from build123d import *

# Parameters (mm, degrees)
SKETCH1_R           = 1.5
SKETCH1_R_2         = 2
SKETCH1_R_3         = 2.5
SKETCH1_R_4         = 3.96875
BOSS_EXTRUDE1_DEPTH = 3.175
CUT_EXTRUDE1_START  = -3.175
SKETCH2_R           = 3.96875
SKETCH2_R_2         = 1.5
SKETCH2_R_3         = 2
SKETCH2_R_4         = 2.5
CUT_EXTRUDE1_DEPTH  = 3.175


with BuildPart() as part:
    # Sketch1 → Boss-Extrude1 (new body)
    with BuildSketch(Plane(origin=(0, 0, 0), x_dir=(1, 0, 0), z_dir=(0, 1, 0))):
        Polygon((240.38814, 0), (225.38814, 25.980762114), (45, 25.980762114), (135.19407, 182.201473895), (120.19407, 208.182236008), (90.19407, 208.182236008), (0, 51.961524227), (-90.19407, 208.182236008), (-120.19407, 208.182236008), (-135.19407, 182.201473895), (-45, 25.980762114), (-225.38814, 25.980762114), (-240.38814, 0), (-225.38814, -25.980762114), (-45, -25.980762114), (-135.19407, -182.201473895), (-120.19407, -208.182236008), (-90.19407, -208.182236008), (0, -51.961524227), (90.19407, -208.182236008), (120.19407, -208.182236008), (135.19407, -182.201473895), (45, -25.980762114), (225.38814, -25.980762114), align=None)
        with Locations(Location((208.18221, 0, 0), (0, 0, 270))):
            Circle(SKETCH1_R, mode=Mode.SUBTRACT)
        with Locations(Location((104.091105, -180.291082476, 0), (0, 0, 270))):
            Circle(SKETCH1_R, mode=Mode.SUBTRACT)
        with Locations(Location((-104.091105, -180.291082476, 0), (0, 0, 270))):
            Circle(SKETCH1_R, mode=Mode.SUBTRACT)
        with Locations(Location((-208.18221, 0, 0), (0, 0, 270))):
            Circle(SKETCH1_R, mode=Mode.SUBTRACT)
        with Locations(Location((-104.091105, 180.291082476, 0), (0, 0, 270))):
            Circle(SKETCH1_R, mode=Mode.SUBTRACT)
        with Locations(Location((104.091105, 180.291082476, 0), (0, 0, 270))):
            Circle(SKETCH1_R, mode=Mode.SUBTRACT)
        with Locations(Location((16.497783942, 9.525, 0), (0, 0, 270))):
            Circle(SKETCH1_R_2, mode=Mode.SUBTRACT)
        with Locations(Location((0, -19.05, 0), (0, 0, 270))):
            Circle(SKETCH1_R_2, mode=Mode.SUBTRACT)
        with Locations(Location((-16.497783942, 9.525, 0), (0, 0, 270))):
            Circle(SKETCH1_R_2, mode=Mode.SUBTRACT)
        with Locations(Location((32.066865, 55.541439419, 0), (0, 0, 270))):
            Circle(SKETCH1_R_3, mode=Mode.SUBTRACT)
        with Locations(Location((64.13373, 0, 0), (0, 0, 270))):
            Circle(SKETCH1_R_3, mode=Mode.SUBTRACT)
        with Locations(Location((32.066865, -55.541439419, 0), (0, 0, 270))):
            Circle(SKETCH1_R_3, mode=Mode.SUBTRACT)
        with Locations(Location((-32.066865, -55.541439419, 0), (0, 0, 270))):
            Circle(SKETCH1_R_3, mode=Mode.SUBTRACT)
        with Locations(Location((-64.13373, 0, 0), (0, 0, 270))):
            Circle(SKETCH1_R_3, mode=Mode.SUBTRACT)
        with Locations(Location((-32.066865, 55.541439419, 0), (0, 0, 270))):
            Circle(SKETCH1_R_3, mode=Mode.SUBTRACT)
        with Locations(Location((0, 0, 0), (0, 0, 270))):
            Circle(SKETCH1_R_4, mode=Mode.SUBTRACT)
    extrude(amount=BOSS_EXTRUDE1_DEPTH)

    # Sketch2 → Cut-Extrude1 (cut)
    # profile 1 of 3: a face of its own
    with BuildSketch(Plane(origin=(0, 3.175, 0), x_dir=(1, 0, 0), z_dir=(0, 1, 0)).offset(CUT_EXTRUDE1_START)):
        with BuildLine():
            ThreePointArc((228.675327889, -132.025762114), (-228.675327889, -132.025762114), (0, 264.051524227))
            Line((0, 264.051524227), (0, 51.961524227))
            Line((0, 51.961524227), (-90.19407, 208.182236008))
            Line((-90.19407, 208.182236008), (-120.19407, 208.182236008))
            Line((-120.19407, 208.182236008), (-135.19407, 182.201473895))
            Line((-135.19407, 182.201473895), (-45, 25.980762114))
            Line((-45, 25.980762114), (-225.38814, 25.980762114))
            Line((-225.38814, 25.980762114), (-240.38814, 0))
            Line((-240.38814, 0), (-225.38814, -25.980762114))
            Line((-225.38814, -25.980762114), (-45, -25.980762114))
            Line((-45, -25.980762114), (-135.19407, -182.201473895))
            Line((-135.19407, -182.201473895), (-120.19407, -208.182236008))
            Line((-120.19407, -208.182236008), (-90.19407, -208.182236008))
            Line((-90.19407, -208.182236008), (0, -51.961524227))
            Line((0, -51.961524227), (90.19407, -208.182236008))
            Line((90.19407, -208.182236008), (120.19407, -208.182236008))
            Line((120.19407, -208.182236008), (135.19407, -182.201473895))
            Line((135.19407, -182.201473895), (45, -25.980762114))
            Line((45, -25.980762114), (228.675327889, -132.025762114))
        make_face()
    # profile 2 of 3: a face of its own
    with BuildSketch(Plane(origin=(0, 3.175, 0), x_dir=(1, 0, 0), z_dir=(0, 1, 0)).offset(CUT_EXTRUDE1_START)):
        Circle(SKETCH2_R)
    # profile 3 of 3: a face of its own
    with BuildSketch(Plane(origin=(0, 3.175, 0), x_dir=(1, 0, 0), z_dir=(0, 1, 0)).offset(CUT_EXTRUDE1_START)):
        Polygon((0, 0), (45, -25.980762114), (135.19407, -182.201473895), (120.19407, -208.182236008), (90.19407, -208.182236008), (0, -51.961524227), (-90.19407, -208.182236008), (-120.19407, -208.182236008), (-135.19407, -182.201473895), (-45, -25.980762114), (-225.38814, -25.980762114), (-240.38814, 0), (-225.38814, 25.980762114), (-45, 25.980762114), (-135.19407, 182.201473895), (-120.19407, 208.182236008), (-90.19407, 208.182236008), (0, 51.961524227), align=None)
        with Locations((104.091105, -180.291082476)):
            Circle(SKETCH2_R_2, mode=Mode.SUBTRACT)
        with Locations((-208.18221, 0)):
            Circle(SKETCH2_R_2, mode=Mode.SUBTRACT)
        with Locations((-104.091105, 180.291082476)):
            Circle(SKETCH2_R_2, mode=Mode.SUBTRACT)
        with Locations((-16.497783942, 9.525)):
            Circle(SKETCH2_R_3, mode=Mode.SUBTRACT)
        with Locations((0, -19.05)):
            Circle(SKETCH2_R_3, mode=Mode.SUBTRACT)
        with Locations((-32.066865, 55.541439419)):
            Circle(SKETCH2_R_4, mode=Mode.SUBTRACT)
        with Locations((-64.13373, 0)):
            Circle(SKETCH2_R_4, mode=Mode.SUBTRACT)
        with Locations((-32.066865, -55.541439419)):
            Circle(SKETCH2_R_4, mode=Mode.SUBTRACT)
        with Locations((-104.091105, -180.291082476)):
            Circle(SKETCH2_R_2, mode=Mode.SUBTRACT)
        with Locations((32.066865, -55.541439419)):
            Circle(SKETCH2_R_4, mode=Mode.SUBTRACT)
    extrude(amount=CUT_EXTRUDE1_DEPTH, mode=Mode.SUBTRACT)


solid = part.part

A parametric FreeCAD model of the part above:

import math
import FreeCAD as App
import Part
import Sketcher
Q = App.Units.Quantity

doc = App.newDocument("Part")
params = doc.addObject("Spreadsheet::Sheet", "Params")
for row, (alias, value) in enumerate([
    ("sketch1_diameter", "3 mm"),
    ("sketch1_diameter2", "5 mm"),
    ("sketch1_diameter3", "4 mm"),
    ("sketch1_width", "30 mm"),
    ("sketch1_length", "30 mm"),
    ("pad1_length", "3.175 mm"),
    ("sketch2_diameter", "3 mm"),
    ("sketch2_diameter2", "5 mm"),
    ("sketch2_diameter3", "4 mm"),
    ("sketch2_length", "212.09 mm"),
    ("pocket1_length", "3.175 mm"),
], start=1):
    params.set(f"A{row}", alias)
    params.set(f"B{row}", "=" + value)
    params.setAlias(f"B{row}", alias)

body = doc.addObject("PartDesign::Body", "Body")

sketch1 = body.newObject("Sketcher::SketchObject", "Sketch")
sketch1.AttachmentSupport = (doc.getObject("XZ_Plane"), [""])
sketch1.MapMode = "FlatFace"
sketch1.addGeometry([
    Part.LineSegment(App.Vector(240.4, 0, 0), App.Vector(225.4, -26, 0)),
    Part.LineSegment(App.Vector(225.4, -26, 0), App.Vector(45, -26, 0)),
    Part.LineSegment(App.Vector(45, -26, 0), App.Vector(135.2, -182.2, 0)),
    Part.LineSegment(App.Vector(135.2, -182.2, 0), App.Vector(120.2, -208.2, 0)),
    Part.LineSegment(App.Vector(120.2, -208.2, 0), App.Vector(90.2, -208.2, 0)),
    Part.LineSegment(App.Vector(90.2, -208.2, 0), App.Vector(0, -52, 0)),
    Part.LineSegment(App.Vector(0, -52, 0), App.Vector(-90.2, -208.2, 0)),
    Part.LineSegment(App.Vector(-90.2, -208.2, 0), App.Vector(-120.2, -208.2, 0)),
    Part.LineSegment(App.Vector(-120.2, -208.2, 0), App.Vector(-135.2, -182.2, 0)),
    Part.LineSegment(App.Vector(-135.2, -182.2, 0), App.Vector(-45, -26, 0)),
    Part.LineSegment(App.Vector(-45, -26, 0), App.Vector(-225.4, -26, 0)),
    Part.LineSegment(App.Vector(-225.4, -26, 0), App.Vector(-240.4, 0, 0)),
    Part.LineSegment(App.Vector(-240.4, 0, 0), App.Vector(-225.4, 26, 0)),
    Part.LineSegment(App.Vector(-225.4, 26, 0), App.Vector(-45, 26, 0)),
    Part.LineSegment(App.Vector(-45, 26, 0), App.Vector(-135.2, 182.2, 0)),
    Part.LineSegment(App.Vector(-135.2, 182.2, 0), App.Vector(-120.2, 208.2, 0)),
    Part.LineSegment(App.Vector(-120.2, 208.2, 0), App.Vector(-90.2, 208.2, 0)),
    Part.LineSegment(App.Vector(-90.2, 208.2, 0), App.Vector(0, 52, 0)),
    Part.LineSegment(App.Vector(0, 52, 0), App.Vector(90.2, 208.2, 0)),
    Part.LineSegment(App.Vector(90.2, 208.2, 0), App.Vector(120.2, 208.2, 0)),
    Part.LineSegment(App.Vector(120.2, 208.2, 0), App.Vector(135.2, 182.2, 0)),
    Part.LineSegment(App.Vector(135.2, 182.2, 0), App.Vector(45, 26, 0)),
    Part.LineSegment(App.Vector(45, 26, 0), App.Vector(225.4, 26, 0)),
    Part.LineSegment(App.Vector(225.4, 26, 0), App.Vector(240.4, 0, 0)),
    Part.Circle(App.Vector(-104.1, 180.3, 0), App.Vector(0, 0, 1), 1.5),
    Part.Circle(App.Vector(-32.1, 55.5, 0), App.Vector(0, 0, 1), 2.5),
    Part.Circle(App.Vector(104.1, 180.3, 0), App.Vector(0, 0, 1), 1.5),
    Part.Circle(App.Vector(32.1, 55.5, 0), App.Vector(0, 0, 1), 2.5),
    Part.Circle(App.Vector(0, 19.1, 0), App.Vector(0, 0, 1), 2),
    Part.Circle(App.Vector(-208.2, 0, 0), App.Vector(0, 0, 1), 1.5),
    Part.Circle(App.Vector(-64.1, 0, 0), App.Vector(0, 0, 1), 2.5),
    Part.Circle(App.Vector(-16.5, -9.5, 0), App.Vector(0, 0, 1), 2),
    Part.Circle(App.Vector(-32.1, -55.5, 0), App.Vector(0, 0, 1), 2.5),
    Part.Circle(App.Vector(-104.1, -180.3, 0), App.Vector(0, 0, 1), 1.5),
    Part.Circle(App.Vector(0, 0, 0), App.Vector(0, 0, 1), 4),
    Part.Circle(App.Vector(16.5, -9.5, 0), App.Vector(0, 0, 1), 2),
    Part.Circle(App.Vector(64.1, 0, 0), App.Vector(0, 0, 1), 2.5),
    Part.Circle(App.Vector(32.1, -55.5, 0), App.Vector(0, 0, 1), 2.5),
    Part.Circle(App.Vector(208.2, 0, 0), App.Vector(0, 0, 1), 1.5),
    Part.Circle(App.Vector(104.1, -180.3, 0), App.Vector(0, 0, 1), 1.5),
], False)
sketch1.addConstraint([
    Sketcher.Constraint("Coincident", 0, 2, 1, 1),
    Sketcher.Constraint("Coincident", 1, 2, 2, 1),
    Sketcher.Constraint("Coincident", 2, 2, 3, 1),
    Sketcher.Constraint("Coincident", 3, 2, 4, 1),
    Sketcher.Constraint("Coincident", 4, 2, 5, 1),
    Sketcher.Constraint("Coincident", 5, 2, 6, 1),
    Sketcher.Constraint("Coincident", 6, 2, 7, 1),
    Sketcher.Constraint("Coincident", 7, 2, 8, 1),
    Sketcher.Constraint("Coincident", 8, 2, 9, 1),
    Sketcher.Constraint("Coincident", 9, 2, 10, 1),
    Sketcher.Constraint("Coincident", 10, 2, 11, 1),
    Sketcher.Constraint("Coincident", 11, 2, 12, 1),
    Sketcher.Constraint("Coincident", 12, 2, 13, 1),
    Sketcher.Constraint("Coincident", 13, 2, 14, 1),
    Sketcher.Constraint("Coincident", 14, 2, 15, 1),
    Sketcher.Constraint("Coincident", 15, 2, 16, 1),
    Sketcher.Constraint("Coincident", 16, 2, 17, 1),
    Sketcher.Constraint("Coincident", 17, 2, 18, 1),
    Sketcher.Constraint("Coincident", 18, 2, 19, 1),
    Sketcher.Constraint("Coincident", 19, 2, 20, 1),
    Sketcher.Constraint("Coincident", 20, 2, 21, 1),
    Sketcher.Constraint("Coincident", 21, 2, 22, 1),
    Sketcher.Constraint("Coincident", 22, 2, 23, 1),
    Sketcher.Constraint("Coincident", 23, 2, 0, 1),
    Sketcher.Constraint("Horizontal", 1),
    Sketcher.Constraint("Horizontal", 4),
    Sketcher.Constraint("Horizontal", 7),
    Sketcher.Constraint("Horizontal", 10),
    Sketcher.Constraint("Horizontal", 13),
    Sketcher.Constraint("Horizontal", 16),
    Sketcher.Constraint("Horizontal", 19),
    Sketcher.Constraint("Horizontal", 22),
    Sketcher.Constraint("Coincident", 34, 3, -1, 1),
    Sketcher.Constraint("Equal", 24, 26),
    Sketcher.Constraint("Equal", 25, 27),
    Sketcher.Constraint("Equal", 26, 29),
    Sketcher.Constraint("Equal", 27, 30),
    Sketcher.Constraint("Equal", 28, 31),
    Sketcher.Constraint("Equal", 30, 32),
    Sketcher.Constraint("Equal", 29, 33),
    Sketcher.Constraint("Equal", 31, 35),
    Sketcher.Constraint("Equal", 32, 36),
    Sketcher.Constraint("Equal", 36, 37),
    Sketcher.Constraint("Equal", 33, 38),
    Sketcher.Constraint("Equal", 38, 39),
    Sketcher.Constraint("Symmetric", 27, 3, 32, 3, -1, 1),
    Sketcher.Constraint("Symmetric", 26, 3, 33, 3, -1, 1),
    Sketcher.Constraint("Symmetric", 30, 3, 36, 3, -1, 1),
    Sketcher.Constraint("Symmetric", 25, 3, 37, 3, -1, 1),
    Sketcher.Constraint("Symmetric", 29, 3, 38, 3, -1, 1),
    Sketcher.Constraint("Symmetric", 24, 3, 39, 3, -1, 1),
    Sketcher.Constraint("Symmetric", 0, 2, 12, 2, -1, 1),
    Sketcher.Constraint("Symmetric", 2, 2, 14, 2, -1, 1),
    Sketcher.Constraint("Symmetric", 3, 2, 15, 2, -1, 1),
    Sketcher.Constraint("Symmetric", 5, 2, 17, 2, -1, 1),
    Sketcher.Constraint("Symmetric", 6, 2, 18, 2, -1, 1),
    Sketcher.Constraint("Symmetric", 8, 2, 20, 2, -1, 1),
    Sketcher.Constraint("Symmetric", 9, 2, 21, 2, -1, 1),
    Sketcher.Constraint("Symmetric", 11, 2, 23, 2, -1, 1),
    Sketcher.Constraint("Symmetric", 24, 3, 26, 3, -2),
    Sketcher.Constraint("Symmetric", 25, 3, 27, 3, -2),
    Sketcher.Constraint("Symmetric", 31, 3, 35, 3, -2),
    Sketcher.Constraint("Symmetric", 4, 2, 6, 2, -2),
    Sketcher.Constraint("Symmetric", 2, 2, 8, 2, -2),
    Sketcher.Constraint("Symmetric", 1, 2, 9, 2, -2),
    Sketcher.Constraint("PointOnObject", 28, 3, -2),
    Sketcher.Constraint("PointOnObject", 29, 3, -1),
    Sketcher.Constraint("PointOnObject", 30, 3, -1),
    Sketcher.Constraint("PointOnObject", 5, 2, -2),
    Sketcher.Constraint("PointOnObject", 11, 2, -1),
    Sketcher.Constraint("Parallel", 0, 3),
    Sketcher.Constraint("Parallel", 2, 5),
    Sketcher.Constraint("Parallel", 3, 6),
    Sketcher.Constraint("Parallel", 5, 8),
    Sketcher.Constraint("Parallel", 8, 11),
    Sketcher.Constraint("Parallel", 11, 14),
    Sketcher.Constraint("Parallel", 14, 17),
    Sketcher.Constraint("Parallel", 17, 20),
    Sketcher.Constraint("Parallel", 20, 23),
    Sketcher.Constraint("Equal", 0, 3),
    Sketcher.Constraint("Equal", 2, 5),
    Sketcher.Constraint("Diameter", 24, Q("3 mm")),
    Sketcher.Constraint("Diameter", 25, Q("5 mm")),
    Sketcher.Constraint("Diameter", 28, Q("4 mm")),
    Sketcher.Constraint("DistanceX", 4, 2, 4, 1, Q("30 mm")),
    Sketcher.Constraint("Angle", 0, Q("-120 deg")),
    Sketcher.Constraint("Distance", 0, Q("30 mm")),
    Sketcher.Constraint("Diameter", 34, Q("7.9375 mm")),
    Sketcher.Constraint("DistanceY", -1, 1, 28, 3, Q("19.05 mm")),
    Sketcher.Constraint("DistanceY", 31, 3, -1, 1, Q("9.525 mm")),
    Sketcher.Constraint("DistanceX", 1, 2, 1, 1, Q("180.38814 mm")),
    Sketcher.Constraint("Distance", 2, Q("180.38814 mm")),
    Sketcher.Constraint("DistanceY", -1, 1, 25, 3, Q("55.541439 mm")),
    Sketcher.Constraint("DistanceX", 29, 3, -1, 1, Q("208.18221 mm")),
    Sketcher.Constraint("DistanceX", 30, 3, -1, 1, Q("64.13373 mm")),
    Sketcher.Constraint("DistanceX", 24, 3, 25, 3, Q("72.02424 mm")),
    Sketcher.Constraint("DistanceX", 25, 3, 26, 3, Q("136.15797 mm")),
    Sketcher.Constraint("DistanceX", 25, 3, 31, 3, Q("15.569081 mm")),
    Sketcher.Constraint("DistanceY", 39, 3, 0, 2, Q("154.31032 mm")),
])
sketch1.setExpression("Constraints[81]", "Params.sketch1_diameter")
sketch1.setExpression("Constraints[82]", "Params.sketch1_diameter2")
sketch1.setExpression("Constraints[83]", "Params.sketch1_diameter3")
sketch1.setExpression("Constraints[84]", "Params.sketch1_width")
sketch1.setExpression("Constraints[86]", "Params.sketch1_length")
pad1 = body.newObject("PartDesign::Pad", "Pad")
pad1.Profile = sketch1
pad1.setExpression("Length", "Params.pad1_length")
pad1.Reversed = True

sketch2 = body.newObject("Sketcher::SketchObject", "Sketch001")
sketch2.AttachmentSupport = (doc.getObject("XZ_Plane"), [""])
sketch2.MapMode = "FlatFace"
sketch2.addGeometry([
    Part.ArcOfCircle(Part.Circle(App.Vector(0, 0, 0), App.Vector(0, 0, 1), 264.1), math.radians(30), math.radians(270)),
    Part.LineSegment(App.Vector(228.7, 132, 0), App.Vector(45, 26, 0)),
    Part.LineSegment(App.Vector(45, 26, 0), App.Vector(3.4, 2, 0)),
    Part.ArcOfCircle(Part.Circle(App.Vector(0, 0, 0), App.Vector(0, 0, 1), 4), math.radians(-90), math.radians(30)),
    Part.LineSegment(App.Vector(0, -4, 0), App.Vector(0, -264.1, 0)),
    Part.Circle(App.Vector(-104.1, -180.3, 0), App.Vector(0, 0, 1), 1.5),
    Part.Circle(App.Vector(-208.2, 0, 0), App.Vector(0, 0, 1), 1.5),
    Part.Circle(App.Vector(-64.1, 0, 0), App.Vector(0, 0, 1), 2.5),
    Part.Circle(App.Vector(-32.1, -55.5, 0), App.Vector(0, 0, 1), 2.5),
    Part.Circle(App.Vector(-16.5, -9.5, 0), App.Vector(0, 0, 1), 2),
    Part.Circle(App.Vector(-104.1, 180.3, 0), App.Vector(0, 0, 1), 1.5),
    Part.Circle(App.Vector(0, 19.1, 0), App.Vector(0, 0, 1), 2),
    Part.Circle(App.Vector(-32.1, 55.5, 0), App.Vector(0, 0, 1), 2.5),
    Part.Circle(App.Vector(32.1, 55.5, 0), App.Vector(0, 0, 1), 2.5),
    Part.Circle(App.Vector(104.1, 180.3, 0), App.Vector(0, 0, 1), 1.5),
], False)
sketch2.addConstraint([
    Sketcher.Constraint("Coincident", 0, 1, 1, 1),
    Sketcher.Constraint("Coincident", 1, 2, 2, 1),
    Sketcher.Constraint("Coincident", 2, 2, 3, 2),
    Sketcher.Constraint("Coincident", 3, 1, 4, 1),
    Sketcher.Constraint("Coincident", 4, 2, 0, 2),
    Sketcher.Constraint("Vertical", 4),
    Sketcher.Constraint("Coincident", 0, 3, -1, 1),
    Sketcher.Constraint("Coincident", 3, 3, -1, 1),
    Sketcher.Constraint("Equal", 5, 6),
    Sketcher.Constraint("Equal", 7, 8),
    Sketcher.Constraint("Equal", 6, 10),
    Sketcher.Constraint("Equal", 9, 11),
    Sketcher.Constraint("Equal", 8, 12),
    Sketcher.Constraint("Equal", 12, 13),
    Sketcher.Constraint("Equal", 10, 14),
    Sketcher.Constraint("Symmetric", 8, 3, 13, 3, -1, 1),
    Sketcher.Constraint("Symmetric", 5, 3, 14, 3, -1, 1),
    Sketcher.Constraint("Symmetric", 12, 3, 13, 3, -2),
    Sketcher.Constraint("Symmetric", 10, 3, 14, 3, -2),
    Sketcher.Constraint("PointOnObject", 6, 3, -1),
    Sketcher.Constraint("PointOnObject", 7, 3, -1),
    Sketcher.Constraint("PointOnObject", 11, 3, -2),
    Sketcher.Constraint("PointOnObject", 3, 1, -2),
    Sketcher.Constraint("Parallel", 1, 2),
    Sketcher.Constraint("Diameter", 5, Q("3 mm")),
    Sketcher.Constraint("Diameter", 7, Q("5 mm")),
    Sketcher.Constraint("Diameter", 9, Q("4 mm")),
    Sketcher.Constraint("Angle", 1, Q("-150 deg")),
    Sketcher.Constraint("DistanceX", -1, 1, 1, 2, Q("45 mm")),
    Sketcher.Constraint("Distance", 1, Q("212.09 mm")),
    Sketcher.Constraint("DistanceY", -1, 1, 11, 3, Q("19.05 mm")),
    Sketcher.Constraint("Radius", 3, Q("3.96875 mm")),
    Sketcher.Constraint("DistanceY", 9, 3, -1, 1, Q("9.525 mm")),
    Sketcher.Constraint("Radius", 0, Q("264.051524 mm")),
    Sketcher.Constraint("DistanceX", 6, 3, -1, 1, Q("208.18221 mm")),
    Sketcher.Constraint("DistanceX", 7, 3, -1, 1, Q("64.13373 mm")),
    Sketcher.Constraint("DistanceY", 8, 3, -1, 1, Q("55.541439 mm")),
    Sketcher.Constraint("DistanceX", 5, 3, 8, 3, Q("72.02424 mm")),
    Sketcher.Constraint("DistanceX", 8, 3, 9, 3, Q("15.569081 mm")),
    Sketcher.Constraint("DistanceX", 12, 3, 13, 3, Q("64.13373 mm")),
    Sketcher.Constraint("DistanceY", 0, 1, 14, 3, Q("48.26532 mm")),
])
sketch2.setExpression("Constraints[24]", "Params.sketch2_diameter")
sketch2.setExpression("Constraints[25]", "Params.sketch2_diameter2")
sketch2.setExpression("Constraints[26]", "Params.sketch2_diameter3")
sketch2.setExpression("Constraints[29]", "Params.sketch2_length")
pocket1 = body.newObject("PartDesign::Pocket", "Pocket")
pocket1.Profile = sketch2
pocket1.setExpression("Length", "Params.pocket1_length")

doc.recompute()
